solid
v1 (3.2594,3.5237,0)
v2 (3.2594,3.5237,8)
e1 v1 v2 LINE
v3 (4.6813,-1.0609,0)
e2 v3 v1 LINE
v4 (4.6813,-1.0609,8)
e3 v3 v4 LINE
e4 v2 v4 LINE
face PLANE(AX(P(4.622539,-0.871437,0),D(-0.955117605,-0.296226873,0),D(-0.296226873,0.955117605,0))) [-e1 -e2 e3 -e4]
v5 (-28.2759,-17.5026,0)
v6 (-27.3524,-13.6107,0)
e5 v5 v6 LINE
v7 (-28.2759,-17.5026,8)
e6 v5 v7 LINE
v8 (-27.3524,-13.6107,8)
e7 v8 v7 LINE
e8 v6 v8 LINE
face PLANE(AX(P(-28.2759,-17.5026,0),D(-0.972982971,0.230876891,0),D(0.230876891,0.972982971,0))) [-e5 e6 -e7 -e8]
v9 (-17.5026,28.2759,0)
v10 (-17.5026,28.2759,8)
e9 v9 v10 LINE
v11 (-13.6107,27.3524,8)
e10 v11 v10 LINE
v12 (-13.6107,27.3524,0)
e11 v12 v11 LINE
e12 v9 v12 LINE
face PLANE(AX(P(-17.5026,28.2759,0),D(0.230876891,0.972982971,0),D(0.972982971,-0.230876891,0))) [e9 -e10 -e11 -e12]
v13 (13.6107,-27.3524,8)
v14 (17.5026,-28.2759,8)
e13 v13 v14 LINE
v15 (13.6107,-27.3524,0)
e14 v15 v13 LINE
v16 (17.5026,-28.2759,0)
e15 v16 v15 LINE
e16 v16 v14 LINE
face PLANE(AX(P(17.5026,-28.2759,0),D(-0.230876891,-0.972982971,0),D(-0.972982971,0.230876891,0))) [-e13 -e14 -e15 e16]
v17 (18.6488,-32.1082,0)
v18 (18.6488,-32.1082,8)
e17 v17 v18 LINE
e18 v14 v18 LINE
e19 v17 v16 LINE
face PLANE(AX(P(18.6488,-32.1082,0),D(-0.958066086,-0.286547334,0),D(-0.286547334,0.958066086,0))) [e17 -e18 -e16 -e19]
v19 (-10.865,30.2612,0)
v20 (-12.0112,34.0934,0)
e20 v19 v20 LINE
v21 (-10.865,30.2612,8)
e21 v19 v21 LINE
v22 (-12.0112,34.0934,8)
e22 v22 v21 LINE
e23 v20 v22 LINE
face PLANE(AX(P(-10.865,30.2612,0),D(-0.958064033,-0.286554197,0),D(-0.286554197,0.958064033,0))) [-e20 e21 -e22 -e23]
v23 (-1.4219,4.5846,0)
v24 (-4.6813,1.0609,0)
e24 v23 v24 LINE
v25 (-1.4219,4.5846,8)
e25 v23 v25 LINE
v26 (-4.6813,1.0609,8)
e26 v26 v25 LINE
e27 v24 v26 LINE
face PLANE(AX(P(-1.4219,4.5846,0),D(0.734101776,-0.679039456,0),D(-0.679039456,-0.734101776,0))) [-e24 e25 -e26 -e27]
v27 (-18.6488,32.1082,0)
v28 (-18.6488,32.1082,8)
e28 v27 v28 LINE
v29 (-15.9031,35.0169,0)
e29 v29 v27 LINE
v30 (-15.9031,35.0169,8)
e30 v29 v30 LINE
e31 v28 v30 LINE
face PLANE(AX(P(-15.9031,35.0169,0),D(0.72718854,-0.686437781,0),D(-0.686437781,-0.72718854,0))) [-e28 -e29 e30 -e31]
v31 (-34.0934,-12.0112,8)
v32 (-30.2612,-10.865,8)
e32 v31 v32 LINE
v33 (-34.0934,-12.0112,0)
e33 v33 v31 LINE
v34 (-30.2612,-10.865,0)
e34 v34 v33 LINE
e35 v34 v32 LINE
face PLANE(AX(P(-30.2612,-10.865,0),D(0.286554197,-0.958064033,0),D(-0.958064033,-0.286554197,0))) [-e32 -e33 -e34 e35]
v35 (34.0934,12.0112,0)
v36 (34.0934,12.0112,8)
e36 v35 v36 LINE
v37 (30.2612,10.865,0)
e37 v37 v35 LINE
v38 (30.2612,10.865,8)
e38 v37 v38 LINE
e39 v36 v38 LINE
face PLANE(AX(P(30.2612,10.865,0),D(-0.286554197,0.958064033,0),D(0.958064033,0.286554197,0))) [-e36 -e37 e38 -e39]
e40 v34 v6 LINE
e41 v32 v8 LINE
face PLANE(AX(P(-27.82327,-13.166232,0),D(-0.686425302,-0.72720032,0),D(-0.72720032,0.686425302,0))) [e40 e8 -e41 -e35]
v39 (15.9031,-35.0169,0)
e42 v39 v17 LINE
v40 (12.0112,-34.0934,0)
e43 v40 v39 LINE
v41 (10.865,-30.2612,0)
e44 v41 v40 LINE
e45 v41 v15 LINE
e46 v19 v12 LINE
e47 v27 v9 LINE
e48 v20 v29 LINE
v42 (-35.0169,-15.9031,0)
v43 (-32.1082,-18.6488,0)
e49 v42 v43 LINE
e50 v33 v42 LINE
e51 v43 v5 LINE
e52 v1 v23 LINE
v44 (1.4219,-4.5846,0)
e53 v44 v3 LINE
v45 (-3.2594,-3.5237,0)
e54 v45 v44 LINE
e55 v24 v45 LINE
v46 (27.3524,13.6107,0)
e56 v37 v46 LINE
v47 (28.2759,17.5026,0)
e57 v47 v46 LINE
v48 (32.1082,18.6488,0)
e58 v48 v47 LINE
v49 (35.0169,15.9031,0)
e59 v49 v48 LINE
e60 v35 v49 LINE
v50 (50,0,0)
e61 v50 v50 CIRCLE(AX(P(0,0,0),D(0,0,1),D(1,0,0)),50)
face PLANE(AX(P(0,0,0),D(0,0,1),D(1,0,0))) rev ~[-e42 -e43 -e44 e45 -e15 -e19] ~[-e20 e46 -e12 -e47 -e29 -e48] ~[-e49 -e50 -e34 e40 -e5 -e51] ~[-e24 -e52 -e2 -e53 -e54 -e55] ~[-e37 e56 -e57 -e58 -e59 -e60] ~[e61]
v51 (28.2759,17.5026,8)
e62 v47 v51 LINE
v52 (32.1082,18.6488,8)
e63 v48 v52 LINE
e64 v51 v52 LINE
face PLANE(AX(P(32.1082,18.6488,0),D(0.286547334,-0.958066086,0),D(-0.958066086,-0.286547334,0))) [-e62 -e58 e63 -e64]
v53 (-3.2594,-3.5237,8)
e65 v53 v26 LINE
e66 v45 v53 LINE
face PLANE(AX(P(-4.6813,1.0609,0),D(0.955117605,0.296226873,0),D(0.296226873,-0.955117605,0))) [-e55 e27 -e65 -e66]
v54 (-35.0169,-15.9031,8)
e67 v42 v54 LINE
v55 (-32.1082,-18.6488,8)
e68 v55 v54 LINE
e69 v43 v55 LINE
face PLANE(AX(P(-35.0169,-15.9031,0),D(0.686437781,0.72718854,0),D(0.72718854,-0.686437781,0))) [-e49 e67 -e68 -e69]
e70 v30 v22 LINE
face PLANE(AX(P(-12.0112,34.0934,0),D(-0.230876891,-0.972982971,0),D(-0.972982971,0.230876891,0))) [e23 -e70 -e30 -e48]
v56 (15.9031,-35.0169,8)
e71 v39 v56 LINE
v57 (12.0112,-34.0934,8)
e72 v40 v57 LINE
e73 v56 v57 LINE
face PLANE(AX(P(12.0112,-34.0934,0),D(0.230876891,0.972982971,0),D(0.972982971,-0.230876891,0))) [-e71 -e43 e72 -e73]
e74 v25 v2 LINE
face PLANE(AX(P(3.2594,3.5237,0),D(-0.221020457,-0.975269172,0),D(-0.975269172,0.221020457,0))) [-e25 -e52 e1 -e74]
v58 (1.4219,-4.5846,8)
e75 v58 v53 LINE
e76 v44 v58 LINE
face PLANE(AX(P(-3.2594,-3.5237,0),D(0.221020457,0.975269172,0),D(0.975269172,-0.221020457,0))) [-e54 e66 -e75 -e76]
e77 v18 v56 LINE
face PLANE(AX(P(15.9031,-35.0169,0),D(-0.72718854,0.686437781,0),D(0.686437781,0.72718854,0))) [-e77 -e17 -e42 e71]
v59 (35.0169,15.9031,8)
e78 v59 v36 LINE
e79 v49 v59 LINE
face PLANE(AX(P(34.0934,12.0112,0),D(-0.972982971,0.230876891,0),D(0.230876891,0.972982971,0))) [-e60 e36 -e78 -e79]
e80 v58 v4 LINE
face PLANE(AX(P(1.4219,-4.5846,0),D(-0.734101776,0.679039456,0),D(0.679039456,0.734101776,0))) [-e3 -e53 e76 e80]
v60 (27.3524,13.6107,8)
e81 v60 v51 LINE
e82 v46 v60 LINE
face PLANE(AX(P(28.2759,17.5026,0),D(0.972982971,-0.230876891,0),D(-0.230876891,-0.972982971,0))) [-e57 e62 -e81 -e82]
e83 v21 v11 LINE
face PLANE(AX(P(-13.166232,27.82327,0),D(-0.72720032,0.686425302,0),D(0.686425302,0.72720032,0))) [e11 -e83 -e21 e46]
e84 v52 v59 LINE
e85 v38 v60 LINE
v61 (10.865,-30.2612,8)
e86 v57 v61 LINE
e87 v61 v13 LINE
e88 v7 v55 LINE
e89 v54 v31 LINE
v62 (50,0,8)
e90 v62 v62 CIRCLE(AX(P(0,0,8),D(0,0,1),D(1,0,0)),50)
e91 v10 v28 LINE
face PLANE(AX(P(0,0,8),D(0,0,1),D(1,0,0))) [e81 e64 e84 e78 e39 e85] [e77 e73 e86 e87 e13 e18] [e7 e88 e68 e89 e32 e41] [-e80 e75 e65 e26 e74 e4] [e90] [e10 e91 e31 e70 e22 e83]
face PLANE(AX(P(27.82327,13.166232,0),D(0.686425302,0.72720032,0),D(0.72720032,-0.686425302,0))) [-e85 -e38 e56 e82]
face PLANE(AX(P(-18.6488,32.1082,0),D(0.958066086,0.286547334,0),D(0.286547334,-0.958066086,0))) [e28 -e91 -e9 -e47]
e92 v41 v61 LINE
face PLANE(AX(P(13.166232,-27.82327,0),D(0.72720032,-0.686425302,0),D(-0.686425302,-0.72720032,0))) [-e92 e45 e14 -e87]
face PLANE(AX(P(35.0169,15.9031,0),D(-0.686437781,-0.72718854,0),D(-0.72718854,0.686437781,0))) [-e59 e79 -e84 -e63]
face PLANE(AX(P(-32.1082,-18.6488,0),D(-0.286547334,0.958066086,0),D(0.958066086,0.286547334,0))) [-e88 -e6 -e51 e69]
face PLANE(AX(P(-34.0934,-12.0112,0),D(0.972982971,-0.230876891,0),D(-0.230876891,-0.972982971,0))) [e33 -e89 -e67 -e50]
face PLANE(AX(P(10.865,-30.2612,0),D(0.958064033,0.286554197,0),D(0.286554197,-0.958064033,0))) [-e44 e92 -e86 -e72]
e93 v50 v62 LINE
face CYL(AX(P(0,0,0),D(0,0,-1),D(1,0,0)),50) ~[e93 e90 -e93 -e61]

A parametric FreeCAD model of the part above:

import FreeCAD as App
import Part
import Sketcher
Q = App.Units.Quantity


def add_polygon(sketch, points):
    """Adds a closed chain of lines whose ends are joined by coincident constraints."""
    first, n = sketch.GeometryCount, len(points)
    for a, b in zip(points, points[1:] + points[:1]):
        sketch.addGeometry(Part.LineSegment(App.Vector(*a, 0), App.Vector(*b, 0)), False)
    for i in range(n):
        sketch.addConstraint(Sketcher.Constraint("Coincident", first + i, 2, first + (i + 1) % n, 1))

doc = App.newDocument("Part")
body = doc.addObject("PartDesign::Body", "Body")

# Sketch on XY plane
sketch1 = body.newObject("Sketcher::SketchObject", "Sketch")
sketch1.AttachmentSupport = (doc.getObject("XY_Plane"), [""])
sketch1.MapMode = "FlatFace"
sketch1.addGeometry(Part.Circle(App.Vector(0, 0, 0), App.Vector(0, 0, 1), 50), False)  # 0
add_polygon(sketch1, [(3.3, 3.5), (4.7, -1.1), (1.4, -4.6), (-3.3, -3.5), (-4.7, 1.1), (-1.4, 4.6)])  # lines 1-6
sketch1.addConstraint(Sketcher.Constraint("Coincident", 0, 3, -1, 1))
sketch1.addConstraint(Sketcher.Constraint("Symmetric", 1, 2, 4, 2, -1, 1))
sketch1.addConstraint(Sketcher.Constraint("Symmetric", 2, 2, 5, 2, -1, 1))
sketch1.addConstraint(Sketcher.Constraint("Symmetric", 3, 2, 6, 2, -1, 1))
sketch1.addConstraint(Sketcher.Constraint("Equal", 1, 2))
sketch1.addConstraint(Sketcher.Constraint("Equal", 2, 3))
sketch1.addConstraint(Sketcher.Constraint("Diameter", 0, Q("100 mm")))
sketch1.addConstraint(Sketcher.Constraint("Distance", 1, Q("4.8 mm")))
sketch1.addConstraint(Sketcher.Constraint("Angle", 1, Q("-72.7689 deg")))
sketch1.addConstraint(Sketcher.Constraint("Angle", 3, Q("167.231 deg")))
sketch1.addConstraint(Sketcher.Constraint("DistanceY", 1, 2, -1, 1, Q("1.061 mm")))
pad1 = body.newObject("PartDesign::Pad", "Pad")
pad1.Profile = sketch1
pad1.Length = 8

# Sketch on XY plane
sketch2 = body.newObject("Sketcher::SketchObject", "Sketch001")
sketch2.AttachmentSupport = (doc.getObject("XY_Plane"), [""])
sketch2.MapMode = "FlatFace"
add_polygon(sketch2, [(-35, -15.9), (-32.1, -18.6), (-28.3, -17.5), (-27.4, -13.6), (-30.3, -10.9), (-34.1, -12)])  # lines 0-5
sketch2.addConstraint(Sketcher.Constraint("Parallel", 0, 3))
sketch2.addConstraint(Sketcher.Constraint("Parallel", 1, 4))
sketch2.addConstraint(Sketcher.Constraint("Parallel", 2, 5))
sketch2.addConstraint(Sketcher.Constraint("Equal", 0, 1))
sketch2.addConstraint(Sketcher.Constraint("Equal", 1, 2))
sketch2.addConstraint(Sketcher.Constraint("Equal", 2, 3))
sketch2.addConstraint(Sketcher.Constraint("Distance", 0, Q("4 mm")))
sketch2.addConstraint(Sketcher.Constraint("DistanceX", 1, 2, -1, 1, Q("28.276 mm")))
sketch2.addConstraint(Sketcher.Constraint("DistanceY", 3, 2, -1, 1, Q("10.865 mm")))
sketch2.addConstraint(Sketcher.Constraint("DistanceX", 5, 2, -1, 1, Q("35.017 mm")))
sketch2.addConstraint(Sketcher.Constraint("DistanceY", 5, 2, -1, 1, Q("15.903 mm")))
sketch2.addConstraint(Sketcher.Constraint("DistanceY", 1, 2, 2, 2, Q("3.892 mm")))
pocket1 = body.newObject("PartDesign::Pocket", "Pocket")
pocket1.Profile = sketch2
pocket1.Length = 25
pocket1.Reversed = True
doc.recompute()

polarpattern = body.newObject("PartDesign::PolarPattern", "PolarPattern")
polarpattern.Originals = [pocket1]
polarpattern.Axis = (doc.getObject("Z_Axis"), [""])
polarpattern.Angle = 360
polarpattern.Occurrences = 4
body.Tip = polarpattern

doc.recompute()
